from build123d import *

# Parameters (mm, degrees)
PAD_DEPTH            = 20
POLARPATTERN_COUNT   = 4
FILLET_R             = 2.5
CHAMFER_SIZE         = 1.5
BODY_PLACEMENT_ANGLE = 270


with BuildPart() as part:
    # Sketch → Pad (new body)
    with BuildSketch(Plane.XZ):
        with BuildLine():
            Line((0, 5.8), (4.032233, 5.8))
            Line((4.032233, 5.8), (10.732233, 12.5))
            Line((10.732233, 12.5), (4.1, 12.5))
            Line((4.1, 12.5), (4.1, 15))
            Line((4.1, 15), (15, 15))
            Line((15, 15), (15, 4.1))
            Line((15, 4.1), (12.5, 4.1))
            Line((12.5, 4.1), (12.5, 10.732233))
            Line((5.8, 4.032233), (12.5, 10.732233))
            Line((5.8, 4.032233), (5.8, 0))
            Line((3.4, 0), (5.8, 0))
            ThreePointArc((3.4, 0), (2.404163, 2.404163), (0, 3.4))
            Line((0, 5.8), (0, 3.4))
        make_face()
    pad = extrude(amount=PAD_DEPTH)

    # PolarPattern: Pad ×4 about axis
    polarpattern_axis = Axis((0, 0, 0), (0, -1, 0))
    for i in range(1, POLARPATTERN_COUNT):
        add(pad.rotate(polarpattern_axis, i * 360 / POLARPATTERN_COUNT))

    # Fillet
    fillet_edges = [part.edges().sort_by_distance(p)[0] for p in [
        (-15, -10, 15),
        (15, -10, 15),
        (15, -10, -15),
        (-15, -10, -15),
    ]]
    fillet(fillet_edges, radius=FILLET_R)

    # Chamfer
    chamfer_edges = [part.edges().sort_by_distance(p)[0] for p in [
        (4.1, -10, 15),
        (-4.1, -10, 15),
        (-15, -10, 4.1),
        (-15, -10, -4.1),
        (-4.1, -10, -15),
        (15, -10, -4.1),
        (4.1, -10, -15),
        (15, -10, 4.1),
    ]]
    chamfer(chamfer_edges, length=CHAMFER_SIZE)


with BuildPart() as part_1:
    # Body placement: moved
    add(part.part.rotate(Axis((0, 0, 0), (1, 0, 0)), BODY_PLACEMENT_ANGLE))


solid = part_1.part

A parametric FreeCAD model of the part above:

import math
import FreeCAD as App
import Part
import Sketcher
from FreeCAD import Vector
Q = App.Units.Quantity


def edges_at(feature, points):
    """Names of the edges that pass closest to the given points."""
    edges = feature.Shape.Edges
    near = lambda p: min(range(len(edges)), key=lambda i: edges[i].distToShape(Part.Vertex(*p))[0])
    return sorted({f"Edge{near(p) + 1}" for p in points})

doc = App.newDocument("Part")
body = doc.addObject("PartDesign::Body", "Body")

# Sketch on XZ plane
sketch1 = doc.addObject("Sketcher::SketchObject", "Sketch")
body.addObject(sketch1)
sketch1.AttachmentSupport = (doc.XZ_Plane, [""])
sketch1.MapMode = "FlatFace"
sketch1.addGeometry(Part.LineSegment(Vector(4, 5.8, 0), Vector(0, 5.8, 0)), False)
sketch1.addGeometry(Part.LineSegment(Vector(0, 5.8, 0), Vector(0, 3.4, 0)), False)
sketch1.addGeometry(Part.ArcOfCircle(Part.Circle(Vector(0, 0, 0), Vector(0, 0, 1), 3.4), math.radians(0), math.radians(90)), False)
sketch1.addGeometry(Part.LineSegment(Vector(3.4, 0, 0), Vector(5.8, 0, 0)), False)
sketch1.addGeometry(Part.LineSegment(Vector(5.8, 0, 0), Vector(5.8, 4, 0)), False)
sketch1.addGeometry(Part.LineSegment(Vector(5.8, 4, 0), Vector(12.5, 10.7, 0)), False)
sketch1.addGeometry(Part.LineSegment(Vector(12.5, 10.7, 0), Vector(12.5, 4.1, 0)), False)
sketch1.addGeometry(Part.LineSegment(Vector(12.5, 4.1, 0), Vector(15, 4.1, 0)), False)
sketch1.addGeometry(Part.LineSegment(Vector(15, 4.1, 0), Vector(15, 15, 0)), False)
sketch1.addGeometry(Part.LineSegment(Vector(15, 15, 0), Vector(4.1, 15, 0)), False)
sketch1.addGeometry(Part.LineSegment(Vector(4.1, 15, 0), Vector(4.1, 12.5, 0)), False)
sketch1.addGeometry(Part.LineSegment(Vector(4.1, 12.5, 0), Vector(10.7, 12.5, 0)), False)
sketch1.addGeometry(Part.LineSegment(Vector(10.7, 12.5, 0), Vector(4, 5.8, 0)), False)
sketch1.addConstraint(Sketcher.Constraint("Coincident", 0, 2, 1, 1))
sketch1.addConstraint(Sketcher.Constraint("Coincident", 1, 2, 2, 2))
sketch1.addConstraint(Sketcher.Constraint("Coincident", 2, 1, 3, 1))
sketch1.addConstraint(Sketcher.Constraint("Coincident", 3, 2, 4, 1))
sketch1.addConstraint(Sketcher.Constraint("Coincident", 4, 2, 5, 1))
sketch1.addConstraint(Sketcher.Constraint("Coincident", 5, 2, 6, 1))
sketch1.addConstraint(Sketcher.Constraint("Coincident", 6, 2, 7, 1))
sketch1.addConstraint(Sketcher.Constraint("Coincident", 7, 2, 8, 1))
sketch1.addConstraint(Sketcher.Constraint("Coincident", 8, 2, 9, 1))
sketch1.addConstraint(Sketcher.Constraint("Coincident", 9, 2, 10, 1))
sketch1.addConstraint(Sketcher.Constraint("Coincident", 10, 2, 11, 1))
sketch1.addConstraint(Sketcher.Constraint("Coincident", 11, 2, 12, 1))
sketch1.addConstraint(Sketcher.Constraint("Coincident", 12, 2, 0, 1))
sketch1.addConstraint(Sketcher.Constraint("Horizontal", 0))
sketch1.addConstraint(Sketcher.Constraint("Vertical", 1))
sketch1.addConstraint(Sketcher.Constraint("Horizontal", 3))
sketch1.addConstraint(Sketcher.Constraint("Vertical", 4))
sketch1.addConstraint(Sketcher.Constraint("Vertical", 6))
sketch1.addConstraint(Sketcher.Constraint("Horizontal", 7))
sketch1.addConstraint(Sketcher.Constraint("Vertical", 8))
sketch1.addConstraint(Sketcher.Constraint("Horizontal", 9))
sketch1.addConstraint(Sketcher.Constraint("Vertical", 10))
sketch1.addConstraint(Sketcher.Constraint("Horizontal", 11))
sketch1.addConstraint(Sketcher.Constraint("Coincident", 2, 3, -1, 1))
sketch1.addConstraint(Sketcher.Constraint("PointOnObject", 0, 2, -2))
sketch1.addConstraint(Sketcher.Constraint("PointOnObject", 2, 1, -1))
sketch1.addConstraint(Sketcher.Constraint("Parallel", 5, 12))
sketch1.addConstraint(Sketcher.Constraint("Equal", 3, 1))
sketch1.addConstraint(Sketcher.Constraint("Equal", 0, 4))
sketch1.addConstraint(Sketcher.Constraint("Equal", 11, 6))
sketch1.addConstraint(Sketcher.Constraint("Equal", 9, 8))
sketch1.addConstraint(Sketcher.Constraint("Equal", 7, 10))
sketch1.addConstraint(Sketcher.Constraint("Radius", 2, 3.4))
sketch1.addConstraint(Sketcher.Constraint("Angle", 5, Q("45 deg")))
sketch1.addConstraint(Sketcher.Constraint("DistanceX", 3, 1, 3, 2, 2.4))
sketch1.addConstraint(Sketcher.Constraint("DistanceX", 7, 1, 7, 2, 2.5))
sketch1.addConstraint(Sketcher.Constraint("DistanceX", 9, 2, 9, 1, 10.9))
sketch1.addConstraint(Sketcher.Constraint("DistanceX", -1, 1, 7, 2, 15.0))
sketch1.addConstraint(Sketcher.Constraint("DistanceX", 0, 2, 0, 1, 4.032233))
pad1 = doc.addObject("PartDesign::Pad", "Pad")
body.addObject(pad1)
pad1.Profile = sketch1
pad1.Length = 20
doc.recompute()

polarpattern = doc.addObject("PartDesign::PolarPattern", "PolarPattern")
body.addObject(polarpattern)
polarpattern.Originals = [pad1]
polarpattern.Axis = (doc.Y_Axis, [""])
polarpattern.Angle = 360
polarpattern.Occurrences = 4
body.Tip = polarpattern
doc.recompute()

fillet = doc.addObject("PartDesign::Fillet", "Fillet")
body.addObject(fillet)
fillet.Base = (polarpattern, edges_at(polarpattern, [
    (-15, -10, 15),
    (15, -10, 15),
    (15, -10, -15),
    (-15, -10, -15),
]))
fillet.Radius = 2.5
doc.recompute()

chamfer = doc.addObject("PartDesign::Chamfer", "Chamfer")
body.addObject(chamfer)
chamfer.Base = (fillet, edges_at(fillet, [
    (4.1, -10, 15),
    (-4.1, -10, 15),
    (-15, -10, 4.1),
    (-15, -10, -4.1),
    (-4.1, -10, -15),
    (15, -10, -4.1),
    (4.1, -10, -15),
    (15, -10, 4.1),
]))
chamfer.Size = 1.5
body2 = doc.addObject("PartDesign::Body", "Body001")
doc.recompute()

body.Placement = App.Placement(Vector(0, 0, 0), App.Rotation(Vector(1, 0, 0), 270))
boolean = doc.addObject("PartDesign::Boolean", "Boolean")
body2.addObject(boolean)
boolean.Type = "Fuse"
boolean.addObjects([body])

doc.recompute()
